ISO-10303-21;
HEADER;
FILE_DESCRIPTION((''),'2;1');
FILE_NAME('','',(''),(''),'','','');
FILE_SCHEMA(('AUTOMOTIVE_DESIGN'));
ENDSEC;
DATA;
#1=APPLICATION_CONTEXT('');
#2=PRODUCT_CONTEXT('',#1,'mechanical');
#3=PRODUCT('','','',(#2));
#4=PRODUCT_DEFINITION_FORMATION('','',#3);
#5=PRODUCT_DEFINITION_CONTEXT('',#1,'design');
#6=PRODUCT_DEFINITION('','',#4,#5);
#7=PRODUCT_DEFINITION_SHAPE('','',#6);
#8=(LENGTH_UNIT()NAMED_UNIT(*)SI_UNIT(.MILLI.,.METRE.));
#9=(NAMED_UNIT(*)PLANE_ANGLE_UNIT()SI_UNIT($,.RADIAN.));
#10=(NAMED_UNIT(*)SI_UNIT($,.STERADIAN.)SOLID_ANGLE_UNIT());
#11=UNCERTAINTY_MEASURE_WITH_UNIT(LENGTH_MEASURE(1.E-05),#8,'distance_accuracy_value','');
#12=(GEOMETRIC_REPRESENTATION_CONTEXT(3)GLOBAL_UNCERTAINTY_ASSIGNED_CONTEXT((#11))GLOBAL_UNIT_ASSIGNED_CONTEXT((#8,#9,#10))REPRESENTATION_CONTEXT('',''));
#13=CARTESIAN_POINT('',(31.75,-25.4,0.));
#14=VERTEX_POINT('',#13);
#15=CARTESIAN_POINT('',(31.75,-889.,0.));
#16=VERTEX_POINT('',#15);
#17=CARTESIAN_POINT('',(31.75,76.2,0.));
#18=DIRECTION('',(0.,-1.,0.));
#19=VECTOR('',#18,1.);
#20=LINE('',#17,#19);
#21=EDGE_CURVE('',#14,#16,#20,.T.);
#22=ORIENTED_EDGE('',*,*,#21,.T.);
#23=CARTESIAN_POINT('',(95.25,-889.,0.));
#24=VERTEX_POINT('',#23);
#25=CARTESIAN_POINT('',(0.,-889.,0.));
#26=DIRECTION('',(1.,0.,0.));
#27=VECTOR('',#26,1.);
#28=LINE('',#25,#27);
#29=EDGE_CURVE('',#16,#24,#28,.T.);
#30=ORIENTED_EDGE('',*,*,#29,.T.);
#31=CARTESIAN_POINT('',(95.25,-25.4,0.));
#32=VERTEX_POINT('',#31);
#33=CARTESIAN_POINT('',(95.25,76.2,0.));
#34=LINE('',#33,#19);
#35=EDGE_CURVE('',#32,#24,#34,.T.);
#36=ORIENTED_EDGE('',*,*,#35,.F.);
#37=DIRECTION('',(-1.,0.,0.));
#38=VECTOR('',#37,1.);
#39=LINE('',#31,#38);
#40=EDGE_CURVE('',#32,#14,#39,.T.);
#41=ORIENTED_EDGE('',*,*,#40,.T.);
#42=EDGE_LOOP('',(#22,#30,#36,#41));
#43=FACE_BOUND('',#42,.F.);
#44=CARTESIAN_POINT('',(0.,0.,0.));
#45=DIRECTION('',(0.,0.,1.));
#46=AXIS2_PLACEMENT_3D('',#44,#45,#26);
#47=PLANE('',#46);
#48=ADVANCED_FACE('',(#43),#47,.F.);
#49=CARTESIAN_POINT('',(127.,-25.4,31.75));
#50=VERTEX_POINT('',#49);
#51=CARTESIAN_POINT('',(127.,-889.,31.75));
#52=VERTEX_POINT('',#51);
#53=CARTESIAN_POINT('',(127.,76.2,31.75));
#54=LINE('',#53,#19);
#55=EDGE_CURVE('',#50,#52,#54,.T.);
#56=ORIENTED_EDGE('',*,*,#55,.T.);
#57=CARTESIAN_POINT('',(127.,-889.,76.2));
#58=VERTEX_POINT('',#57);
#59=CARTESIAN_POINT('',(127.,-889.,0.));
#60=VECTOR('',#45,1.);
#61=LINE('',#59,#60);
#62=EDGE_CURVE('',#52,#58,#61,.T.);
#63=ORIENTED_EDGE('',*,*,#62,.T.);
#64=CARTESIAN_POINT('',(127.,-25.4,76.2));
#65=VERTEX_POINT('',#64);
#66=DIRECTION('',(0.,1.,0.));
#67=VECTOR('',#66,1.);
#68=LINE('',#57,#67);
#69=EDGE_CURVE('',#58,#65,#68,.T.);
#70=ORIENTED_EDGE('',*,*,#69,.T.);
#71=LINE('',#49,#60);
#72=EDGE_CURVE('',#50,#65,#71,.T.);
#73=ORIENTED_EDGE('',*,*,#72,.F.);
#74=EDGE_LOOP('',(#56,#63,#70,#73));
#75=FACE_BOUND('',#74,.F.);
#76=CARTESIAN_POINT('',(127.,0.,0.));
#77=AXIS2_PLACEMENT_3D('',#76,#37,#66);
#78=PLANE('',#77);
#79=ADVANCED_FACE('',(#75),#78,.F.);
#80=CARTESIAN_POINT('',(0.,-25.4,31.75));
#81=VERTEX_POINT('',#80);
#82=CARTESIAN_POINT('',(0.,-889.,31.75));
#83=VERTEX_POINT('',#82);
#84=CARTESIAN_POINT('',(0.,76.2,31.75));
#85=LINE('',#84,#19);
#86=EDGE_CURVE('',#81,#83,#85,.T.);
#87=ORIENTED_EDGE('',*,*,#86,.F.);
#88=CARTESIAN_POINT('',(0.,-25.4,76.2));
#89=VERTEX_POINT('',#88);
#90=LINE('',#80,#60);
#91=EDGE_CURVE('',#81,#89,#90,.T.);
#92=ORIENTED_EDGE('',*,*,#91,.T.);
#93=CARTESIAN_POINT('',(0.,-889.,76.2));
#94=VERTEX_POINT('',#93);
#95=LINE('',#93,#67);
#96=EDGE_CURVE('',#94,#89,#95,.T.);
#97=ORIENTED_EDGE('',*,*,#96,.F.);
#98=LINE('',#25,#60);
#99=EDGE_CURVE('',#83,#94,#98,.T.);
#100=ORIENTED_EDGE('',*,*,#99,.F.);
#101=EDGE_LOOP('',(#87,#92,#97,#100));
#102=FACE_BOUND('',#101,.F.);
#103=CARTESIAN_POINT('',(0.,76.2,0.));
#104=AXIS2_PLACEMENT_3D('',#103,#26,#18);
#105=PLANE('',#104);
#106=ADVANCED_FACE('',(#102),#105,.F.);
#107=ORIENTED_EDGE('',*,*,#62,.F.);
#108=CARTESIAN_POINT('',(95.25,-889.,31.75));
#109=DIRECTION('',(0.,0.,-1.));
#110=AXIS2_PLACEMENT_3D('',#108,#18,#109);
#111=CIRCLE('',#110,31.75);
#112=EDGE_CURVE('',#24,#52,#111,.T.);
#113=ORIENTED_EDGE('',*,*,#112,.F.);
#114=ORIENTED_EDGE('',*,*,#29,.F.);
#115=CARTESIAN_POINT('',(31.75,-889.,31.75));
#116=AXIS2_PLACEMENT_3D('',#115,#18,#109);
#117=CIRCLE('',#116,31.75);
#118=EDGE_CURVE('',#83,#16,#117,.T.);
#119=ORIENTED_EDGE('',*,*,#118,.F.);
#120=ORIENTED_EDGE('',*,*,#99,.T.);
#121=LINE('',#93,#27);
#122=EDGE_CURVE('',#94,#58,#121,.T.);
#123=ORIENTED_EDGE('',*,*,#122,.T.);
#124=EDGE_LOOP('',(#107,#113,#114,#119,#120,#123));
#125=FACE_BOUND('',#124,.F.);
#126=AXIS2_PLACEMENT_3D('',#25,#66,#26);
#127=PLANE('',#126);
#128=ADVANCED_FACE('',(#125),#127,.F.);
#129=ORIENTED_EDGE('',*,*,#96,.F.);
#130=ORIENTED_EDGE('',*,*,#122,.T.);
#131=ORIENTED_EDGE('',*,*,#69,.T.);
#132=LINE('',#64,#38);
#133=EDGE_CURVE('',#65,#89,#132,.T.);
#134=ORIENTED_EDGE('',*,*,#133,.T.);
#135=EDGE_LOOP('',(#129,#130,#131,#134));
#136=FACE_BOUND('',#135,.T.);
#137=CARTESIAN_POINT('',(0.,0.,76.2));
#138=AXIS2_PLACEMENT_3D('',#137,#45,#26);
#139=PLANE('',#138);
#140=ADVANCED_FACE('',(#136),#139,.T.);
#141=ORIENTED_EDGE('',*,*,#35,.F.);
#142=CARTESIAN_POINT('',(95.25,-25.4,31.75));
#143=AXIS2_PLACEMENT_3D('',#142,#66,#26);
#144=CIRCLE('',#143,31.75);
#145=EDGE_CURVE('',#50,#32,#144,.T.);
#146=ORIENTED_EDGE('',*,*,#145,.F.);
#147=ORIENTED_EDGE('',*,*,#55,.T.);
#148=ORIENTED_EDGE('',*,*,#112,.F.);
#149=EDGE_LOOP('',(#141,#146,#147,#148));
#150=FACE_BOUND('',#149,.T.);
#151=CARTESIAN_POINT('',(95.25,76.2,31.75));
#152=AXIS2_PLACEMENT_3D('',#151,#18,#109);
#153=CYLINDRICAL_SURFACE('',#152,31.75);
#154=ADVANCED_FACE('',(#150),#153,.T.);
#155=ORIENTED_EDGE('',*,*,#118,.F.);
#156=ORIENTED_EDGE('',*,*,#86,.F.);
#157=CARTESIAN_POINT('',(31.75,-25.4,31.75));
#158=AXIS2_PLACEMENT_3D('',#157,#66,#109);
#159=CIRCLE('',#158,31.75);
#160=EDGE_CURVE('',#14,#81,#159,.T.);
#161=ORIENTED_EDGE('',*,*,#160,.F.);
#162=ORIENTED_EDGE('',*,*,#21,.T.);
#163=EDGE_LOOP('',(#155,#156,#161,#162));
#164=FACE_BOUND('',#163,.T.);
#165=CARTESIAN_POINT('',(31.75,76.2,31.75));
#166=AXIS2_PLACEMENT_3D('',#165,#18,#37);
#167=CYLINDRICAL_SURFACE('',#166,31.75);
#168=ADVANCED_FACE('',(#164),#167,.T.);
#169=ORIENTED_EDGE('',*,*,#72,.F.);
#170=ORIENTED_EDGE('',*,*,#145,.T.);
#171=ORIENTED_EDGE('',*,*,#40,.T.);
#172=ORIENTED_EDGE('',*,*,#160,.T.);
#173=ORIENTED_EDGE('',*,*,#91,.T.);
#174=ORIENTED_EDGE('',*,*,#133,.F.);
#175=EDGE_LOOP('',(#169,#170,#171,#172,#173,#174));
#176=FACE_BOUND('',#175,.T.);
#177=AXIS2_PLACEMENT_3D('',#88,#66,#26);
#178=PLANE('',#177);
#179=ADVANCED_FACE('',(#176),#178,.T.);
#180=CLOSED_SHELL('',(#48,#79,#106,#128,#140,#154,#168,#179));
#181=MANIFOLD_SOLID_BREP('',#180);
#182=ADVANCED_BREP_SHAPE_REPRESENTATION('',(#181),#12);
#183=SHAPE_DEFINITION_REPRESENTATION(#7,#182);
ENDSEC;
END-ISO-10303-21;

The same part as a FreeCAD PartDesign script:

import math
import FreeCAD as App
import Part
import Sketcher
Q = App.Units.Quantity


def edges_at(feature, points):
    """Names of the edges that pass closest to the given points."""
    edges = feature.Shape.Edges
    near = lambda p: min(range(len(edges)), key=lambda i: edges[i].distToShape(Part.Vertex(*p))[0])
    return sorted({f"Edge{near(p) + 1}" for p in points})


def add_polygon(sketch, points):
    """Adds a closed chain of lines whose ends are joined by coincident constraints."""
    first, n = sketch.GeometryCount, len(points)
    for a, b in zip(points, points[1:] + points[:1]):
        sketch.addGeometry(Part.LineSegment(App.Vector(*a, 0), App.Vector(*b, 0)), False)
    for i in range(n):
        sketch.addConstraint(Sketcher.Constraint("Coincident", first + i, 2, first + (i + 1) % n, 1))

doc = App.newDocument("Part")
params = doc.addObject("Spreadsheet::Sheet", "Params")
for row, (alias, value) in enumerate([
    ("sketch1_width", "5 in"),
    ("sketch1_height", "38 in"),
    ("pad1_length", "3 in"),
    ("fillet_radius", "1.25 in"),
    ("sketch2_width", "5 in"),
    ("sketch2_radius", "1.25 in"),
    ("pocket1_length", "4 in"),
], start=1):
    params.set(f"A{row}", alias)
    params.set(f"B{row}", "=" + value)
    params.setAlias(f"B{row}", alias)

body = doc.addObject("PartDesign::Body", "Body")

# Sketch on XY plane
sketch1 = body.newObject("Sketcher::SketchObject", "Sketch")
sketch1.AttachmentSupport = (doc.getObject("XY_Plane"), [""])
sketch1.MapMode = "FlatFace"
add_polygon(sketch1, [(0, 76), (0, -889), (127, -889), (127, 76)])  # lines 0-3
sketch1.addConstraint(Sketcher.Constraint("Vertical", 0))
sketch1.addConstraint(Sketcher.Constraint("Horizontal", 1))
sketch1.addConstraint(Sketcher.Constraint("Vertical", 2))
sketch1.addConstraint(Sketcher.Constraint("Horizontal", 3))
sketch1.addConstraint(Sketcher.Constraint("PointOnObject", 0, 2, -2))
sketch1.addConstraint(Sketcher.Constraint("DistanceX", 1, 1, 1, 2, Q("5 in")))
sketch1.addConstraint(Sketcher.Constraint("DistanceY", 0, 2, 0, 1, Q("38 in")))
sketch1.addConstraint(Sketcher.Constraint("DistanceY", -1, 1, 2, 2, Q("3 in")))
sketch1.setExpression("Constraints[9]", "Params.sketch1_width")
sketch1.setExpression("Constraints[10]", "Params.sketch1_height")
pad1 = body.newObject("PartDesign::Pad", "Pad")
pad1.Profile = sketch1
pad1.setExpression("Length", "Params.pad1_length")
doc.recompute()

fillet = body.newObject("PartDesign::Fillet", "Fillet")
fillet.Base = (pad1, edges_at(pad1, [(127, -406.4, 0), (0, -406.4, 0)]))
fillet.setExpression("Radius", "Params.fillet_radius")

# Sketch on XZ plane
sketch2 = body.newObject("Sketcher::SketchObject", "Sketch001")
sketch2.AttachmentSupport = (doc.getObject("XZ_Plane"), [""])
sketch2.MapMode = "FlatFace"
sketch2.AttachmentOffset = App.Placement(App.Vector(0, 0, -3 * 25.4), App.Rotation())
sketch2.addGeometry(Part.LineSegment(App.Vector(95, 0, 0), App.Vector(32, 0, 0)), False)
sketch2.addGeometry(Part.ArcOfCircle(Part.Circle(App.Vector(32, 32, 0), App.Vector(0, 0, 1), 32), math.radians(180), math.radians(270)), False)
sketch2.addGeometry(Part.LineSegment(App.Vector(0, 32, 0), App.Vector(0, 76, 0)), False)
sketch2.addGeometry(Part.LineSegment(App.Vector(0, 76, 0), App.Vector(127, 76, 0)), False)
sketch2.addGeometry(Part.LineSegment(App.Vector(127, 76, 0), App.Vector(127, 32, 0)), False)
sketch2.addGeometry(Part.ArcOfCircle(Part.Circle(App.Vector(95, 32, 0), App.Vector(0, 0, 1), 32), math.radians(-90), math.radians(0)), False)
sketch2.addConstraint(Sketcher.Constraint("Tangent", 0, 2, 1, 2))
sketch2.addConstraint(Sketcher.Constraint("Tangent", 1, 1, 2, 1))
sketch2.addConstraint(Sketcher.Constraint("Coincident", 2, 2, 3, 1))
sketch2.addConstraint(Sketcher.Constraint("Coincident", 3, 2, 4, 1))
sketch2.addConstraint(Sketcher.Constraint("Tangent", 4, 2, 5, 2))
sketch2.addConstraint(Sketcher.Constraint("Tangent", 5, 1, 0, 1))
sketch2.addConstraint(Sketcher.Constraint("Horizontal", 0))
sketch2.addConstraint(Sketcher.Constraint("Vertical", 2))
sketch2.addConstraint(Sketcher.Constraint("Horizontal", 3))
sketch2.addConstraint(Sketcher.Constraint("Vertical", 4))
sketch2.addConstraint(Sketcher.Constraint("Equal", 1, 5))
sketch2.addConstraint(Sketcher.Constraint("PointOnObject", 0, 2, -1))
sketch2.addConstraint(Sketcher.Constraint("PointOnObject", 1, 1, -2))
sketch2.addConstraint(Sketcher.Constraint("DistanceX", 3, 1, 3, 2, Q("5 in")))
sketch2.addConstraint(Sketcher.Constraint("Radius", 1, Q("1.25 in")))
sketch2.addConstraint(Sketcher.Constraint("DistanceY", -1, 1, 2, 2, Q("3 in")))
sketch2.setExpression("Constraints[13]", "Params.sketch2_width")
sketch2.setExpression("Constraints[14]", "Params.sketch2_radius")
pocket1 = body.newObject("PartDesign::Pocket", "Pocket")
pocket1.Profile = sketch2
pocket1.setExpression("Length", "Params.pocket1_length")
pocket1.Reversed = True

doc.recompute()
